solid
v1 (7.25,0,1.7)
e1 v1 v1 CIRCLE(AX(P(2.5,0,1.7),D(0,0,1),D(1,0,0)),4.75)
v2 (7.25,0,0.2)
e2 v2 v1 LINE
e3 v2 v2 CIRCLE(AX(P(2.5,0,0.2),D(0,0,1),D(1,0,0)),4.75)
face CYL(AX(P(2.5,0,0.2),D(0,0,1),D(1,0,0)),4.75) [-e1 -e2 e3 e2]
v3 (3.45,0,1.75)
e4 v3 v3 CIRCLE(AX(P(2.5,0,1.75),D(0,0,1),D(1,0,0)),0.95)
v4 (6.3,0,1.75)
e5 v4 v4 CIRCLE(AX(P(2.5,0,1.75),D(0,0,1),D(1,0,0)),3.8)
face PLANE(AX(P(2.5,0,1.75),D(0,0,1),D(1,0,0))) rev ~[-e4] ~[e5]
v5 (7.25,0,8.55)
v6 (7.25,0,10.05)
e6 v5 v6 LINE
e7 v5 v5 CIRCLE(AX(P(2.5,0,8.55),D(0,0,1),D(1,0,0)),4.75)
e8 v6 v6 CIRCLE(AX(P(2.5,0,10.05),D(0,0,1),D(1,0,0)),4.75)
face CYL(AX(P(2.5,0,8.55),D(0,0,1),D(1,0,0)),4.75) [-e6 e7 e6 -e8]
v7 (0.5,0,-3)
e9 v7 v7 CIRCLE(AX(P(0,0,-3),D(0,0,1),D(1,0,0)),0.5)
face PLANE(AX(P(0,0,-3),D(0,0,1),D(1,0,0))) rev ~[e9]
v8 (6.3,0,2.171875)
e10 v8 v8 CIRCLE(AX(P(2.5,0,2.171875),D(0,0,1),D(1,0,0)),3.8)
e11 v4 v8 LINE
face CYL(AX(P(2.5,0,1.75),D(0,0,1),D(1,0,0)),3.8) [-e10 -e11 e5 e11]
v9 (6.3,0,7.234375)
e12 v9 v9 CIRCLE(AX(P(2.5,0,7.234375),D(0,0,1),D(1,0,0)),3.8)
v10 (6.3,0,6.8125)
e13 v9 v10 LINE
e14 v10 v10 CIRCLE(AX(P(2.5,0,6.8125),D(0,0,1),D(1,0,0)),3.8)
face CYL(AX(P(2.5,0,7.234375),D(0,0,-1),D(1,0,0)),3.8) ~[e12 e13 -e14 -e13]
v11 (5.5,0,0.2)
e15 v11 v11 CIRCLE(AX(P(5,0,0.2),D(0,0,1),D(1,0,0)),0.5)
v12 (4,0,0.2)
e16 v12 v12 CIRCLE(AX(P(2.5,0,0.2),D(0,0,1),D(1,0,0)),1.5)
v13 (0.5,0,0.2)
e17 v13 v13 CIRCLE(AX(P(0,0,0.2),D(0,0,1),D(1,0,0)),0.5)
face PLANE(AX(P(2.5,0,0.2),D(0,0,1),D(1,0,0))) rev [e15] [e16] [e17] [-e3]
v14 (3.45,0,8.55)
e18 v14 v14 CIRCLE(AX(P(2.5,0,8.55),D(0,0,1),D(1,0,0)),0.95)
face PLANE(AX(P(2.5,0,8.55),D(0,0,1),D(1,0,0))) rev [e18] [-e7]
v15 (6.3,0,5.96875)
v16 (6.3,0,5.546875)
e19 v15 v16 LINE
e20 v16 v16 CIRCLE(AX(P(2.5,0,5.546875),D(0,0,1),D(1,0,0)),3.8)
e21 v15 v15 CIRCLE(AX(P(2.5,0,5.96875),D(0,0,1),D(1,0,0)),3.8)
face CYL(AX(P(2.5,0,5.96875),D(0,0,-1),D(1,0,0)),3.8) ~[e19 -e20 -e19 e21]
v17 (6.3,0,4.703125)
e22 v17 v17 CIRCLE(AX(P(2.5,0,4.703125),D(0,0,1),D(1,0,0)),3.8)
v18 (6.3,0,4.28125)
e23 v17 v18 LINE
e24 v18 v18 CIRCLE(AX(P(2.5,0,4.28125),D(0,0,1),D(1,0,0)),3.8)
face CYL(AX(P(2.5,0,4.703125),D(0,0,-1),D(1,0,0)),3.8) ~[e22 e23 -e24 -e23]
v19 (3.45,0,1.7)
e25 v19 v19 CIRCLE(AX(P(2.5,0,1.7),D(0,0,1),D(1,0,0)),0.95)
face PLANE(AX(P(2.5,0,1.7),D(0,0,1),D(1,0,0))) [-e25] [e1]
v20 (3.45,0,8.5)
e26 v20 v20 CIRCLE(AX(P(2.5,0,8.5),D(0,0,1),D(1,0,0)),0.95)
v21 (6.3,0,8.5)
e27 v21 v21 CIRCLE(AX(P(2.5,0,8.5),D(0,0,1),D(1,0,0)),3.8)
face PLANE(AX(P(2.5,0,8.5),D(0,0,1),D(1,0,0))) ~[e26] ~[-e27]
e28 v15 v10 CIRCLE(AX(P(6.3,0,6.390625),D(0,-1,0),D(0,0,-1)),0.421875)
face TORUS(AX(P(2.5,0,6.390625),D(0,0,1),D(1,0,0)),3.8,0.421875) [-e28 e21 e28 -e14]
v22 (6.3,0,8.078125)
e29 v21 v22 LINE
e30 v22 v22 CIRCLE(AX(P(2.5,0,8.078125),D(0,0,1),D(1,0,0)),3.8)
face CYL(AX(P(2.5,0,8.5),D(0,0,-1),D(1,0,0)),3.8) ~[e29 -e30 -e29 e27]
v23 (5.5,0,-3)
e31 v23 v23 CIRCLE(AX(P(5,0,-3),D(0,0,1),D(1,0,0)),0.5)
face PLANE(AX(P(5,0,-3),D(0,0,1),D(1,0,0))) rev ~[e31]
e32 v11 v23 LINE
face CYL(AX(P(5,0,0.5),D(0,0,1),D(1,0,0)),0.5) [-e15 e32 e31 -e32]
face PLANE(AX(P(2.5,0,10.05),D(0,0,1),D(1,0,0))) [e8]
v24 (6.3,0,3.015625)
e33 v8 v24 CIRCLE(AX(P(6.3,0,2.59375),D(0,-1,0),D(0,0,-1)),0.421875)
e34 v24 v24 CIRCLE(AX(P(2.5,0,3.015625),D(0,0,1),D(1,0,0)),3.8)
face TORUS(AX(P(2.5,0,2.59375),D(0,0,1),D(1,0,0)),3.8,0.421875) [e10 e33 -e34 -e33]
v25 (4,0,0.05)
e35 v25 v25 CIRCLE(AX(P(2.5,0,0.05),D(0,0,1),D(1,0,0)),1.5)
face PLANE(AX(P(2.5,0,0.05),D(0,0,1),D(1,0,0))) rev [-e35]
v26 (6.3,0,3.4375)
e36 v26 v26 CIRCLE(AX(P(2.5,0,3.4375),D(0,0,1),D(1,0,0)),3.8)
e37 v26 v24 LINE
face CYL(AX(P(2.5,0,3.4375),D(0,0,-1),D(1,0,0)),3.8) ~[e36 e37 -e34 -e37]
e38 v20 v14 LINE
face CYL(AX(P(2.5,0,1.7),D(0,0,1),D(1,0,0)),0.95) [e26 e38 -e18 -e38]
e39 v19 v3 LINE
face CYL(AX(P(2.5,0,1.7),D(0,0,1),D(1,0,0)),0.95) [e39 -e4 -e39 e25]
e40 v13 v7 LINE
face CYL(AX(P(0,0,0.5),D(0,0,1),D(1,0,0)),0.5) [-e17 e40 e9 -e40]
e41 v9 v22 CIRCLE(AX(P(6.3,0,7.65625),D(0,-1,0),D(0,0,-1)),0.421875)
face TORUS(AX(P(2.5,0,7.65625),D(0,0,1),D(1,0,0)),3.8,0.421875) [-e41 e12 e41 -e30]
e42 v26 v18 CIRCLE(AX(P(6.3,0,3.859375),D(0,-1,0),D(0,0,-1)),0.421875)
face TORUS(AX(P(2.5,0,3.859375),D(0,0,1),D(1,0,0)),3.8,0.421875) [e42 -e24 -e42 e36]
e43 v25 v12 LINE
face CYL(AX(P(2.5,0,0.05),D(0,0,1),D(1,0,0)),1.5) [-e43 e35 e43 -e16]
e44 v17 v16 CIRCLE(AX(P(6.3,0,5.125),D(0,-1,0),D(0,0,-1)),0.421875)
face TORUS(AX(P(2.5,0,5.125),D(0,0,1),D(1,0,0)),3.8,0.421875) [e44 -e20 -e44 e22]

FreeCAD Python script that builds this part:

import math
import FreeCAD as App
import Part
import Sketcher

V = App.Vector

doc = App.newDocument("Part")
body = doc.addObject("PartDesign::Body", "Body")

# Sketch on XZ plane
sketch1 = body.newObject("Sketcher::SketchObject", "Sketch")
sketch1.AttachmentSupport = (doc.getObject("XZ_Plane"), [""])
sketch1.MapMode = "FlatFace"
sketch1.addGeometry([
    Part.LineSegment(V(2.5, 0.05, 0), V(4, 0.05, 0)),  # 0
    Part.LineSegment(V(4, 0.05, 0), V(4, 0.2, 0)),  # 1
    Part.LineSegment(V(4, 0.2, 0), V(7.25, 0.2, 0)),  # 2
    Part.LineSegment(V(7.25, 0.2, 0), V(7.25, 1.7, 0)),  # 3
    Part.LineSegment(V(7.25, 1.7, 0), V(3.45, 1.7, 0)),  # 4
    Part.LineSegment(V(3.45, 1.7, 0), V(3.45, 8.55, 0)),  # 5
    Part.LineSegment(V(3.45, 8.55, 0), V(7.25, 8.55, 0)),  # 6
    Part.LineSegment(V(7.25, 8.55, 0), V(7.25, 10.05, 0)),  # 7
    Part.LineSegment(V(7.25, 10.05, 0), V(2.5, 10.05, 0)),  # 8
    Part.LineSegment(V(2.5, 10.05, 0), V(2.5, 0.05, 0)),  # 9
], False)
sketch1.addGeometry(Part.LineSegment(V(2.5, 0.05, 0), V(2.5, 10.05, 0)), True)  # axis
sketch1.addConstraint([
    Sketcher.Constraint("Coincident", 0, 2, 1, 1),
    Sketcher.Constraint("Coincident", 1, 2, 2, 1),
    Sketcher.Constraint("Coincident", 2, 2, 3, 1),
    Sketcher.Constraint("Coincident", 3, 2, 4, 1),
    Sketcher.Constraint("Coincident", 4, 2, 5, 1),
    Sketcher.Constraint("Coincident", 5, 2, 6, 1),
    Sketcher.Constraint("Coincident", 6, 2, 7, 1),
    Sketcher.Constraint("Coincident", 7, 2, 8, 1),
    Sketcher.Constraint("Coincident", 8, 2, 9, 1),
    Sketcher.Constraint("Coincident", 9, 2, 0, 1),
    Sketcher.Constraint("Horizontal", 0),
    Sketcher.Constraint("Vertical", 1),
    Sketcher.Constraint("Horizontal", 2),
    Sketcher.Constraint("Vertical", 3),
    Sketcher.Constraint("Horizontal", 4),
    Sketcher.Constraint("Vertical", 5),
    Sketcher.Constraint("Horizontal", 6),
    Sketcher.Constraint("Vertical", 7),
    Sketcher.Constraint("Horizontal", 8),
    Sketcher.Constraint("Vertical", 9),
    Sketcher.Constraint("Vertical", 10),
    Sketcher.Constraint("Coincident", 10, 1, 9, 2),
    Sketcher.Constraint("Horizontal", 7, 2, 10, 2),
    Sketcher.Constraint("Vertical", 3, 2, 6, 2),
    Sketcher.Constraint("Equal", 0, 3),
    Sketcher.Constraint("Equal", 3, 7),
    Sketcher.Constraint("DistanceY", 9, 2, 9, 1, 10.0),
    Sketcher.Constraint("DistanceX", 0, 1, 0, 2, 1.5),
    Sketcher.Constraint("DistanceX", 4, 2, 4, 1, 3.8),
    Sketcher.Constraint("DistanceX", -1, 1, 0, 2, 4.0),
    Sketcher.Constraint("DistanceX", 2, 1, 2, 2, 3.25),
    Sketcher.Constraint("DistanceY", 1, 1, 1, 2, 0.15),
    Sketcher.Constraint("DistanceY", -1, 1, 1, 2, 0.2),
])
revolution = body.newObject("PartDesign::Revolution", "Revolution")
revolution.Profile = sketch1
revolution.ReferenceAxis = (sketch1, ["Axis0"])
revolution.Angle = 360
body2 = doc.addObject("PartDesign::Body", "Body001")
body2.AllowCompound = True

# Sketch on XY plane
sketch2 = body2.newObject("Sketcher::SketchObject", "Sketch001")
sketch2.AttachmentSupport = (doc.getObject("XY_Plane001"), [""])
sketch2.MapMode = "FlatFace"
sketch2.AttachmentOffset = App.Placement(V(0, 0, 0.5), App.Rotation())
sketch2.addGeometry([
    Part.Circle(V(0, 0, 0), V(0, 0, 1), 0.5),
    Part.Circle(V(5, 0, 0), V(0, 0, 1), 0.5),
], False)
sketch2.addConstraint([
    Sketcher.Constraint("Coincident", 0, 3, -1, 1),
    Sketcher.Constraint("Equal", 0, 1),
    Sketcher.Constraint("PointOnObject", 1, 3, -1),
    Sketcher.Constraint("Diameter", 0, 1.0),
    Sketcher.Constraint("DistanceX", -1, 1, 1, 3, 5.0),
])
pad1 = body2.newObject("PartDesign::Pad", "Pad")
pad1.Profile = sketch2
pad1.Length = 3.5
pad1.Reversed = True
body3 = doc.addObject("PartDesign::Body", "Body002")

# Sketch on XZ plane
sketch3 = body3.newObject("Sketcher::SketchObject", "Sketch002")
sketch3.AttachmentSupport = (doc.getObject("XZ_Plane002"), [""])
sketch3.MapMode = "FlatFace"
sketch3.addGeometry([
    Part.LineSegment(V(3.45, 1.75, 0), V(6.3, 1.75, 0)),  # 0
    Part.LineSegment(V(6.3, 1.75, 0), V(6.3, 2.171875, 0)),  # 1
    Part.ArcOfCircle(Part.Circle(V(6.3, 2.59375, 0), V(0, 0, 1), 0.421875), math.radians(-90), math.radians(90)),  # 2
    Part.LineSegment(V(6.3, 3.015625, 0), V(6.3, 3.4375, 0)),  # 3
    Part.ArcOfCircle(Part.Circle(V(6.3, 3.859375, 0), V(0, 0, 1), 0.421875), math.radians(-90), math.radians(90)),  # 4
    Part.LineSegment(V(6.3, 4.28125, 0), V(6.3, 4.703125, 0)),  # 5
    Part.ArcOfCircle(Part.Circle(V(6.3, 5.125, 0), V(0, 0, 1), 0.421875), math.radians(-90), math.radians(90)),  # 6
    Part.LineSegment(V(6.3, 5.546875, 0), V(6.3, 5.96875, 0)),  # 7
    Part.ArcOfCircle(Part.Circle(V(6.3, 6.390625, 0), V(0, 0, 1), 0.421875), math.radians(-90), math.radians(90)),  # 8
    Part.LineSegment(V(6.3, 6.8125, 0), V(6.3, 7.234375, 0)),  # 9
    Part.ArcOfCircle(Part.Circle(V(6.3, 7.65625, 0), V(0, 0, 1), 0.421875), math.radians(-90), math.radians(90)),  # 10
    Part.LineSegment(V(6.3, 8.078125, 0), V(6.3, 8.5, 0)),  # 11
    Part.LineSegment(V(6.3, 8.5, 0), V(3.45, 8.5, 0)),  # 12
    Part.LineSegment(V(3.45, 8.5, 0), V(3.45, 1.75, 0)),  # 13
], False)
sketch3.addGeometry(Part.LineSegment(V(2.5, 1.75, 0), V(2.5, 8.5, 0)), True)  # axis
sketch3.addConstraint([
    Sketcher.Constraint("Coincident", 0, 2, 1, 1),
    Sketcher.Constraint("Coincident", 1, 2, 2, 1),
    Sketcher.Constraint("Coincident", 2, 2, 3, 1),
    Sketcher.Constraint("Coincident", 3, 2, 4, 1),
    Sketcher.Constraint("Coincident", 4, 2, 5, 1),
    Sketcher.Constraint("Coincident", 5, 2, 6, 1),
    Sketcher.Constraint("Coincident", 6, 2, 7, 1),
    Sketcher.Constraint("Coincident", 7, 2, 8, 1),
    Sketcher.Constraint("Coincident", 8, 2, 9, 1),
    Sketcher.Constraint("Coincident", 9, 2, 10, 1),
    Sketcher.Constraint("Coincident", 10, 2, 11, 1),
    Sketcher.Constraint("Coincident", 11, 2, 12, 1),
    Sketcher.Constraint("Coincident", 12, 2, 13, 1),
    Sketcher.Constraint("Coincident", 13, 2, 0, 1),
    Sketcher.Constraint("Horizontal", 0),
    Sketcher.Constraint("Vertical", 1),
    Sketcher.Constraint("Vertical", 3),
    Sketcher.Constraint("Vertical", 5),
    Sketcher.Constraint("Vertical", 7),
    Sketcher.Constraint("Vertical", 9),
    Sketcher.Constraint("Vertical", 11),
    Sketcher.Constraint("Horizontal", 12),
    Sketcher.Constraint("Vertical", 13),
    Sketcher.Constraint("Vertical", 14),
    Sketcher.Constraint("Equal", 2, 4),
    Sketcher.Constraint("Equal", 4, 6),
    Sketcher.Constraint("Equal", 6, 8),
    Sketcher.Constraint("Equal", 8, 10),
    Sketcher.Constraint("Horizontal", 13, 2, 14, 1),
    Sketcher.Constraint("Horizontal", 12, 2, 14, 2),
    Sketcher.Constraint("Vertical", 2, 3, 4, 3),
    Sketcher.Constraint("Vertical", 4, 3, 6, 3),
    Sketcher.Constraint("Vertical", 6, 3, 8, 3),
    Sketcher.Constraint("Vertical", 8, 3, 10, 3),
    Sketcher.Constraint("Vertical", 10, 3, 0, 2),
    Sketcher.Constraint("Vertical", 1, 2, 2, 2),
    Sketcher.Constraint("Vertical", 3, 2, 4, 2),
    Sketcher.Constraint("Vertical", 5, 2, 6, 2),
    Sketcher.Constraint("Vertical", 7, 2, 8, 2),
    Sketcher.Constraint("Vertical", 9, 2, 10, 2),
    Sketcher.Constraint("Equal", 1, 3),
    Sketcher.Constraint("Equal", 3, 5),
    Sketcher.Constraint("Equal", 5, 7),
    Sketcher.Constraint("Equal", 7, 9),
    Sketcher.Constraint("Equal", 9, 11),
    Sketcher.Constraint("DistanceX", 0, 1, 0, 2, 2.85),
    Sketcher.Constraint("DistanceY", 13, 2, 13, 1, 6.75),
    Sketcher.Constraint("DistanceX", -1, 1, 2, 3, 6.3),
    Sketcher.Constraint("DistanceY", -1, 1, 11, 2, 8.5),
    Sketcher.Constraint("DistanceX", -1, 1, 14, 1, 2.5),
    Sketcher.Constraint("Radius", 2, 0.421875),
])
revolution2 = body3.newObject("PartDesign::Revolution", "Revolution001")
revolution2.Profile = sketch3
revolution2.ReferenceAxis = (sketch3, ["Axis0"])
revolution2.Angle = 360
doc.recompute()

boolean = body3.newObject("PartDesign::Boolean", "Boolean")
boolean.Type = "Fuse"
boolean.addObjects([body])
doc.recompute()

boolean2 = body3.newObject("PartDesign::Boolean", "Boolean001")
boolean2.Type = "Fuse"
boolean2.addObjects([body2])

doc.recompute()
